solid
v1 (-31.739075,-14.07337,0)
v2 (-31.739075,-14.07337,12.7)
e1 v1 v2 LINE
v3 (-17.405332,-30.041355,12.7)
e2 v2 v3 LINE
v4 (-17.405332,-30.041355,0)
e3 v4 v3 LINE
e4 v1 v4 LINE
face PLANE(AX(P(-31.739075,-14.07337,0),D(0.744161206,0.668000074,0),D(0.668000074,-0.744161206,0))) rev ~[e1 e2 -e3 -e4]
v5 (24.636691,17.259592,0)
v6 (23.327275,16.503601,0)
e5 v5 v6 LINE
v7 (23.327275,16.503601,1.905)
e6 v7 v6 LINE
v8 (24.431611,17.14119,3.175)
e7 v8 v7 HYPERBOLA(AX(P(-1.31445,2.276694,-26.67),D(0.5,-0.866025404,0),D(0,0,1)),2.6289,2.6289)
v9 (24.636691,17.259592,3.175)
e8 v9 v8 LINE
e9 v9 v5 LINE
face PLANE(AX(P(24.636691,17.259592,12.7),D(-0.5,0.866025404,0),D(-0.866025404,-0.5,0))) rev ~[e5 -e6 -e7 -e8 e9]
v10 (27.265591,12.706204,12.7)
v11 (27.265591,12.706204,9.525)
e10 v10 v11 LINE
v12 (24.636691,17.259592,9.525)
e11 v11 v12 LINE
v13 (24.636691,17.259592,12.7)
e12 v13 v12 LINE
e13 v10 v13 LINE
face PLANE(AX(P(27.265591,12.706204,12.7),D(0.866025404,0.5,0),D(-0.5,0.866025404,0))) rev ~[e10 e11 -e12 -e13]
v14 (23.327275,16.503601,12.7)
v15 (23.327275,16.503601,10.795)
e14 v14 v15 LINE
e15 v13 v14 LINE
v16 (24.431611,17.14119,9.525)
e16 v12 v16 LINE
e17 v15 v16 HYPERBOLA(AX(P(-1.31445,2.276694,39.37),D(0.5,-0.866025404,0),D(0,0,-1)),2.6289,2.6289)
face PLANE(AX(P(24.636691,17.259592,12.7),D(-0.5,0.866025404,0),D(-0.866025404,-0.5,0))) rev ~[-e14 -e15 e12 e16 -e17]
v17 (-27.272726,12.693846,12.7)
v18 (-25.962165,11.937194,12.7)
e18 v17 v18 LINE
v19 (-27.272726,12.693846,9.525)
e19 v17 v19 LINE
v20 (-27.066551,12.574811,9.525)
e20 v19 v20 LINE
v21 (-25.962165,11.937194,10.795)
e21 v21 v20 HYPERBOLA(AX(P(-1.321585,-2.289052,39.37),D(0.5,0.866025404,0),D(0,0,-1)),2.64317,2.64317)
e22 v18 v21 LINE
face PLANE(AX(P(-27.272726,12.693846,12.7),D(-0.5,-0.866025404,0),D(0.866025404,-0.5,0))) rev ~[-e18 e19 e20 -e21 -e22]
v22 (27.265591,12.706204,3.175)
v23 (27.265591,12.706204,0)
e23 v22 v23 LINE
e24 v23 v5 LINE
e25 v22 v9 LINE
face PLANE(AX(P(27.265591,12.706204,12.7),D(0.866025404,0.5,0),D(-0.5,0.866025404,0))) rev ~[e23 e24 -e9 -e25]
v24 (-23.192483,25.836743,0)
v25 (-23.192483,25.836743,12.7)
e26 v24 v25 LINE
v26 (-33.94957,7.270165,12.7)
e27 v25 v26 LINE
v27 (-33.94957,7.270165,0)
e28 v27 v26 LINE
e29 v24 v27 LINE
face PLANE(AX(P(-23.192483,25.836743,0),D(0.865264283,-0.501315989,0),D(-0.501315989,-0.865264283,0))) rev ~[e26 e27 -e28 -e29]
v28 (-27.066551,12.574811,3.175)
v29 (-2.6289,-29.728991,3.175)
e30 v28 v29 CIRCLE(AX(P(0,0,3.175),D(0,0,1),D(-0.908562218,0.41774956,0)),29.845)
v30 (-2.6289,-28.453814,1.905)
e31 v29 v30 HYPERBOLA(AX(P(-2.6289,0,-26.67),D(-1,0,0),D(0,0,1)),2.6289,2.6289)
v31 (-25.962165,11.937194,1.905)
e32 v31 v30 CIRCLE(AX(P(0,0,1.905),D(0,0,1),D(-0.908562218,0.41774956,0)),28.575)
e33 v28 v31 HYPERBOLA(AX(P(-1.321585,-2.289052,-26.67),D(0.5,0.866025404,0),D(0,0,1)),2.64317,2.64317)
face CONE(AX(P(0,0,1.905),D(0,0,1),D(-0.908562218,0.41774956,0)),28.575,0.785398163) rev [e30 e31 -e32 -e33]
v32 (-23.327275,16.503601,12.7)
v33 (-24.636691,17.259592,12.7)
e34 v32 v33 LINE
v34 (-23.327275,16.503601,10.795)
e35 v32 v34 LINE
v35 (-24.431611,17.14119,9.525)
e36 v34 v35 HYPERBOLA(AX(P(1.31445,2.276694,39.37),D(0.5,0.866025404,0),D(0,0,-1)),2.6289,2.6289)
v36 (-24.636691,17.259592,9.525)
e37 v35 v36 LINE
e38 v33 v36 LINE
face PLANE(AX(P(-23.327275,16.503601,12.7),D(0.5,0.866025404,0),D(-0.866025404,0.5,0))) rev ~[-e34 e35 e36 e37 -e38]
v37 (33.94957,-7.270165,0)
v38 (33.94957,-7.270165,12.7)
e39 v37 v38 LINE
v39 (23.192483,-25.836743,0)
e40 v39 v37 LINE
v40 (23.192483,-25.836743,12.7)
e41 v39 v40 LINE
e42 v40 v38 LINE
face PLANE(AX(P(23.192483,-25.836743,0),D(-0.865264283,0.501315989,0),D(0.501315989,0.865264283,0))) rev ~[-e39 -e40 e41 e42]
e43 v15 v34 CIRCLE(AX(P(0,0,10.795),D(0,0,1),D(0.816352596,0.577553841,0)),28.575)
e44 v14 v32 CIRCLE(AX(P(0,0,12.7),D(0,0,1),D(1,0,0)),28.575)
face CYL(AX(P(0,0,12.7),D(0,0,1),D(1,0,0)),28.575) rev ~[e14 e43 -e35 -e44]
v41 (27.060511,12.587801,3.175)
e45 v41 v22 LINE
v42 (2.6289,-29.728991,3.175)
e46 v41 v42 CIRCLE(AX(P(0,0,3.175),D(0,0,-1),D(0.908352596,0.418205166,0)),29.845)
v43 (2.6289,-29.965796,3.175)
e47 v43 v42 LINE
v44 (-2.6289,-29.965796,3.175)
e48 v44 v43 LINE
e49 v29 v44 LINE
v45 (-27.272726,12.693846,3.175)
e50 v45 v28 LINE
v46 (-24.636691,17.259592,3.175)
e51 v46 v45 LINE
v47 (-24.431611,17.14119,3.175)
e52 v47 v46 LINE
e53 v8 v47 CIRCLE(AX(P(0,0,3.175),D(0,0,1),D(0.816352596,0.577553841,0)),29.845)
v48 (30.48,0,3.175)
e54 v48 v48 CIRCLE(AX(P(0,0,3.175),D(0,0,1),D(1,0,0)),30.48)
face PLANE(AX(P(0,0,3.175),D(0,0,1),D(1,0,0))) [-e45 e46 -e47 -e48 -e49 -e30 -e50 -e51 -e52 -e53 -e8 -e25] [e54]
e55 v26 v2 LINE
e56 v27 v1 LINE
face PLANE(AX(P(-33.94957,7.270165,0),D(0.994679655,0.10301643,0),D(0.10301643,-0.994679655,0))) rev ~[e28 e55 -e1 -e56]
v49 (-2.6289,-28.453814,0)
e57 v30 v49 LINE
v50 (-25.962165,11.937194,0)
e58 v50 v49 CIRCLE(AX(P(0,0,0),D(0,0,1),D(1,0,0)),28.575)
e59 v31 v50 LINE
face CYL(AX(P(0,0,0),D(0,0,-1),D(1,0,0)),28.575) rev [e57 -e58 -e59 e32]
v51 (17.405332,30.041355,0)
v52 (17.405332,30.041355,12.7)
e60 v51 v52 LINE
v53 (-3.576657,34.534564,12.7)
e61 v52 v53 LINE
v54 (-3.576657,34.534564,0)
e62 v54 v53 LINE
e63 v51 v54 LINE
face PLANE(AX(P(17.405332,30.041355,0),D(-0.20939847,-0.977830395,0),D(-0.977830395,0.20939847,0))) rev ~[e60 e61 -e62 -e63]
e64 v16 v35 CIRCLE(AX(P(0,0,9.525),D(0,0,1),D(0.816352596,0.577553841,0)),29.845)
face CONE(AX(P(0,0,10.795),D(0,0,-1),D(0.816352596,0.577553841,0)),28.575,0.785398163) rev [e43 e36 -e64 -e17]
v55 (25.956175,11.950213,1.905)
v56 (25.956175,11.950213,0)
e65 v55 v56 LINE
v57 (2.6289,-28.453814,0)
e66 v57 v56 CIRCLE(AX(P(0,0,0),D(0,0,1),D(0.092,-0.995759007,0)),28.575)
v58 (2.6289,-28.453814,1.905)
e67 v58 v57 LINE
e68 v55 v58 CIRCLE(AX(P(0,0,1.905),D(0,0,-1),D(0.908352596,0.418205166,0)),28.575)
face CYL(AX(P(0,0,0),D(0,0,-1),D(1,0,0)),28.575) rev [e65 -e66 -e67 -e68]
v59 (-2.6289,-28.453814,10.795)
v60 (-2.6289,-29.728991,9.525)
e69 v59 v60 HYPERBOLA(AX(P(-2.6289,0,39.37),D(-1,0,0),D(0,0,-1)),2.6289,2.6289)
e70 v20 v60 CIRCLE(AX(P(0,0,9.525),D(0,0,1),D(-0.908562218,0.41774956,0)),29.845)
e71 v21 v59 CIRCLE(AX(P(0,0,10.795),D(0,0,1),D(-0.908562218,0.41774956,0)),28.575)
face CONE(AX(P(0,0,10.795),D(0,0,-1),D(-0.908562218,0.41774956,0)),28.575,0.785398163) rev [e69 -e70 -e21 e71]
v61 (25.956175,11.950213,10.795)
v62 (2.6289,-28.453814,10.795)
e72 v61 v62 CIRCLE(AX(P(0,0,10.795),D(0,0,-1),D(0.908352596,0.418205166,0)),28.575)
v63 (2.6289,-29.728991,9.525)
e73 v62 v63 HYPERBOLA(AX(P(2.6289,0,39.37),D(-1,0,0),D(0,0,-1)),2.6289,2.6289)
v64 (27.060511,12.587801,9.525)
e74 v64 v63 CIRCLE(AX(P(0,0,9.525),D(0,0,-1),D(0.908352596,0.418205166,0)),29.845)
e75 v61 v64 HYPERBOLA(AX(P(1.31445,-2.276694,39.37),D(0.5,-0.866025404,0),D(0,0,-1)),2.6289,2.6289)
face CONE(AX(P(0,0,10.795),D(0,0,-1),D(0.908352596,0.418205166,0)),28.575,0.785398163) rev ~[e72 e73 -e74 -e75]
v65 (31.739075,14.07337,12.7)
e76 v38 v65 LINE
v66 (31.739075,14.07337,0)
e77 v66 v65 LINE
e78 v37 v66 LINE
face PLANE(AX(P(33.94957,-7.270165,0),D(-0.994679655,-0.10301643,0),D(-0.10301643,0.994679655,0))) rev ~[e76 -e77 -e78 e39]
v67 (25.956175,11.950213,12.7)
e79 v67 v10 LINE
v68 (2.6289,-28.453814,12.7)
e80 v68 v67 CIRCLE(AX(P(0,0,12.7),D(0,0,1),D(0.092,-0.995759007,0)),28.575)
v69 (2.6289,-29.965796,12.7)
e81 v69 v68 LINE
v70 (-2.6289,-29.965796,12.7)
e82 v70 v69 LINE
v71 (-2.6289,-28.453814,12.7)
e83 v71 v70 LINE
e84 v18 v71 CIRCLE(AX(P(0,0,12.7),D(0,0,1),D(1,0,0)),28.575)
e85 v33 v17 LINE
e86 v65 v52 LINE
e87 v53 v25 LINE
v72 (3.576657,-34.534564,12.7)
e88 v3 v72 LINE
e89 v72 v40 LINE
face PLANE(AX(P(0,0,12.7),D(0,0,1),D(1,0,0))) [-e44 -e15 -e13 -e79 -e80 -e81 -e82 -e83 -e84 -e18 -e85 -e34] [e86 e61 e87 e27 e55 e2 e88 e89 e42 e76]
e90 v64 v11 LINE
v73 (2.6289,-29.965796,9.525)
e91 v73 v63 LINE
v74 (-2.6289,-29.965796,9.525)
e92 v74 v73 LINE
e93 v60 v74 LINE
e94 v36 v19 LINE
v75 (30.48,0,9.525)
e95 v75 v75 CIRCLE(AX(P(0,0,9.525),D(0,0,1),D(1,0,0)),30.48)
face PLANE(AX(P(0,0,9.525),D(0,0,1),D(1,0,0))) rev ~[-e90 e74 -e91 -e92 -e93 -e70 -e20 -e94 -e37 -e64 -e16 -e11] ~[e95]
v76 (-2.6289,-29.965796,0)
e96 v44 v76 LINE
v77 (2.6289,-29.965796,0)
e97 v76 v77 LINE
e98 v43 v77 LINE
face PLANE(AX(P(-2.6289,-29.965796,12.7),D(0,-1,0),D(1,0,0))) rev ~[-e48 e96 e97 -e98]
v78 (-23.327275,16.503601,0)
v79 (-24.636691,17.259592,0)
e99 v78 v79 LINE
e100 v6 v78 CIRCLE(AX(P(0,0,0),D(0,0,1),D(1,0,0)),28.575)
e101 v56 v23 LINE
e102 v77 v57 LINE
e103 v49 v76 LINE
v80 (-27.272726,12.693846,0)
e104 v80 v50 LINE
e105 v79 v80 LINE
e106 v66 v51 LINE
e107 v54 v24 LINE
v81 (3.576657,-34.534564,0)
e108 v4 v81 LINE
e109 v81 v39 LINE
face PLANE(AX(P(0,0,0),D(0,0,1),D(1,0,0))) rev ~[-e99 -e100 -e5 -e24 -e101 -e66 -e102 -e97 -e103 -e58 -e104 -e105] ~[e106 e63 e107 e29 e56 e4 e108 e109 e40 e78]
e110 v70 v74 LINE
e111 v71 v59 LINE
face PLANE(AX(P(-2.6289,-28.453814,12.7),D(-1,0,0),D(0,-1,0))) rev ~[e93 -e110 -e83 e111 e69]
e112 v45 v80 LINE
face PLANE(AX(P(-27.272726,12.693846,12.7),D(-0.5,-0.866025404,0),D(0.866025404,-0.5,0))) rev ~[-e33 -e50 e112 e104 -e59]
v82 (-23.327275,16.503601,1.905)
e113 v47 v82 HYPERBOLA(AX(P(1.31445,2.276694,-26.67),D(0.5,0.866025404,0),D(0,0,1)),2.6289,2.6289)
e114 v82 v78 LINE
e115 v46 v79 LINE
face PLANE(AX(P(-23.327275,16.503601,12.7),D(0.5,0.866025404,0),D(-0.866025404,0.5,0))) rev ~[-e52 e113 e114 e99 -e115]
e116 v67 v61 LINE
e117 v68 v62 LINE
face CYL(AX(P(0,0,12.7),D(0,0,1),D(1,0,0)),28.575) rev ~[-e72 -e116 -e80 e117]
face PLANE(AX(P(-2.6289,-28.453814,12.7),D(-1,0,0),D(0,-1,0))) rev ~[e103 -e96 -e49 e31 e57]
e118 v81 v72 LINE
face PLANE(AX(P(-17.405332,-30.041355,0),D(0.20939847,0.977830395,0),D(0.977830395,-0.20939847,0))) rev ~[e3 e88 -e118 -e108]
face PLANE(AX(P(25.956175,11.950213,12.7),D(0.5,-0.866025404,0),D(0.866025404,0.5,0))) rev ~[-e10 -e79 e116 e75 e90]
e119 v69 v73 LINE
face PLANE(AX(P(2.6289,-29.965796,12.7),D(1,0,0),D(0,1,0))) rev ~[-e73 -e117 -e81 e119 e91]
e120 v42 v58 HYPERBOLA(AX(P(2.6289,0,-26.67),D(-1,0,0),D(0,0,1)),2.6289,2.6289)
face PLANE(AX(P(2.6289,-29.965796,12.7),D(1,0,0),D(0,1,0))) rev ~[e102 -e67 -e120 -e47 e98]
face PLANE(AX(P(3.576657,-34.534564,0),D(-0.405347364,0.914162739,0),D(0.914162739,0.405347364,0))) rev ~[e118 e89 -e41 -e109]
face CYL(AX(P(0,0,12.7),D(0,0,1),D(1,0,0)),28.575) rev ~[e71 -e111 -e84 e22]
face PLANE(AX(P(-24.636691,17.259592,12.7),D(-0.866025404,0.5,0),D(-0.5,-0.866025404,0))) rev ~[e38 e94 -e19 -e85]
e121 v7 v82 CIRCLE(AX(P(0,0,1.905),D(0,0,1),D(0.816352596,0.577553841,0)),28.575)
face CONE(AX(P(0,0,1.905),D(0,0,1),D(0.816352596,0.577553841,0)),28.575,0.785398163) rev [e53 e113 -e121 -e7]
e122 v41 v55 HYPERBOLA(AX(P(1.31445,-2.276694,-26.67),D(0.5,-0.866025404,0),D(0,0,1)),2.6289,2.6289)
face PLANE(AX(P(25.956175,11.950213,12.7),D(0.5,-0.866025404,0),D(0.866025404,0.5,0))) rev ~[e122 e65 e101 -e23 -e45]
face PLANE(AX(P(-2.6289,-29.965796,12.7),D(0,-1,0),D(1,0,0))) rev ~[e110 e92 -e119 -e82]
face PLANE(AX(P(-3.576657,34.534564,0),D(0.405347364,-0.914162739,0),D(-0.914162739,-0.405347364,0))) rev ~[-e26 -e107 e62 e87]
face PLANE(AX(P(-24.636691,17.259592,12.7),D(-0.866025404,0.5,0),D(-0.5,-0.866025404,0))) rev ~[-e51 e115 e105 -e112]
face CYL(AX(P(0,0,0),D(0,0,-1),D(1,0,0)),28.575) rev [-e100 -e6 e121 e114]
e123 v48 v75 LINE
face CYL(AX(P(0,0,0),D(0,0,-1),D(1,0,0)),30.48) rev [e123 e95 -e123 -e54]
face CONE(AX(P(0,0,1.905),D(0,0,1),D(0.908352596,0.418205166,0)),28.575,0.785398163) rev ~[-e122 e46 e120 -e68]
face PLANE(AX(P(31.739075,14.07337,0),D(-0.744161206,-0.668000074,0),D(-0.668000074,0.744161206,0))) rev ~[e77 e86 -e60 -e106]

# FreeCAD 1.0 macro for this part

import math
import FreeCAD as App
import Part
import Sketcher

V = App.Vector
Q = App.Units.Quantity


def edges_at(feature, points):
    """Names of the edges that pass closest to the given points."""
    edges = feature.Shape.Edges
    near = lambda p: min(range(len(edges)), key=lambda i: edges[i].distToShape(Part.Vertex(*p))[0])
    return sorted({f"Edge{near(p) + 1}" for p in points})

doc = App.newDocument("Part")
params = doc.addObject("Spreadsheet::Sheet", "Params")
for row, (alias, value) in enumerate([
    ("sketch1_diameter", "2.4 in"),
    ("pad1_length", "0.5 in"),
    ("sketch2_diameter", "2.4 in"),
    ("sketch2_diameter2", "2.25 in"),
    ("pad2_length", "0.125 in"),
    ("sketch3_diameter", "2.4 in"),
    ("sketch3_diameter2", "2.25 in"),
    ("pad3_length", "0.125 in"),
    ("sketch4_radius", "1.125 in"),
    ("sketch4_width", "0.207 in"),
    ("sketch4_length", "0.207 in"),
    ("pocket1_length", "1 in"),
    ("chamfer_size", "0.05 in"),
], start=1):
    params.set(f"A{row}", alias)
    params.set(f"B{row}", "=" + value)
    params.setAlias(f"B{row}", alias)

body = doc.addObject("PartDesign::Body", "Body")

sketch1 = body.newObject("Sketcher::SketchObject", "Sketch")
sketch1.AttachmentSupport = (doc.getObject("XY_Plane"), [""])
sketch1.MapMode = "FlatFace"
sketch1.addGeometry([
    Part.LineSegment(V(23, -26, 0), V(34, -7, 0)),
    Part.LineSegment(V(34, -7, 0), V(32, 14, 0)),
    Part.LineSegment(V(32, 14, 0), V(17, 30, 0)),
    Part.LineSegment(V(17, 30, 0), V(-4, 35, 0)),
    Part.LineSegment(V(-4, 35, 0), V(-23, 26, 0)),
    Part.LineSegment(V(-23, 26, 0), V(-34, 7, 0)),
    Part.LineSegment(V(-34, 7, 0), V(-32, -14, 0)),
    Part.LineSegment(V(-32, -14, 0), V(-17, -30, 0)),
    Part.LineSegment(V(-17, -30, 0), V(4, -35, 0)),
    Part.LineSegment(V(4, -35, 0), V(23, -26, 0)),
    Part.Circle(V(0, 0, 0), V(0, 0, 1), 30),
], False)
sketch1.addConstraint([
    Sketcher.Constraint("Coincident", 0, 2, 1, 1),
    Sketcher.Constraint("Coincident", 1, 2, 2, 1),
    Sketcher.Constraint("Coincident", 2, 2, 3, 1),
    Sketcher.Constraint("Coincident", 3, 2, 4, 1),
    Sketcher.Constraint("Coincident", 4, 2, 5, 1),
    Sketcher.Constraint("Coincident", 5, 2, 6, 1),
    Sketcher.Constraint("Coincident", 6, 2, 7, 1),
    Sketcher.Constraint("Coincident", 7, 2, 8, 1),
    Sketcher.Constraint("Coincident", 8, 2, 9, 1),
    Sketcher.Constraint("Coincident", 9, 2, 0, 1),
    Sketcher.Constraint("Coincident", 10, 3, -1, 1),
    Sketcher.Constraint("Symmetric", 0, 2, 5, 2, -1, 1),
    Sketcher.Constraint("Symmetric", 1, 2, 6, 2, -1, 1),
    Sketcher.Constraint("Symmetric", 2, 2, 7, 2, -1, 1),
    Sketcher.Constraint("Symmetric", 3, 2, 8, 2, -1, 1),
    Sketcher.Constraint("Symmetric", 4, 2, 9, 2, -1, 1),
    Sketcher.Constraint("Equal", 0, 1),
    Sketcher.Constraint("Equal", 1, 2),
    Sketcher.Constraint("Equal", 2, 3),
    Sketcher.Constraint("Equal", 3, 4),
    Sketcher.Constraint("Diameter", 10, Q("2.4 in")),
    Sketcher.Constraint("DistanceY", 5, 2, 3, 2, Q("27.264399 mm")),
    Sketcher.Constraint("DistanceX", 5, 2, 2, 2, Q("51.354901 mm")),
    Sketcher.Constraint("DistanceY", 7, 2, 4, 2, Q("55.878098 mm")),
    Sketcher.Constraint("DistanceX", -1, 1, 0, 2, Q("33.94957 mm")),
    Sketcher.Constraint("DistanceY", -1, 1, 1, 2, Q("14.07337 mm")),
    Sketcher.Constraint("DistanceY", 0, 2, 2, 2, Q("37.31152 mm")),
])
sketch1.setExpression("Constraints[20]", "Params.sketch1_diameter")
pad1 = body.newObject("PartDesign::Pad", "Pad")
pad1.Profile = sketch1
pad1.setExpression("Length", "Params.pad1_length")

sketch2 = body.newObject("Sketcher::SketchObject", "Sketch001")
sketch2.AttachmentSupport = (doc.getObject("XY_Plane"), [""])
sketch2.MapMode = "FlatFace"
sketch2.addGeometry([
    Part.Circle(V(0, 0, 0), V(0, 0, 1), 30),
    Part.Circle(V(0, 0, 0), V(0, 0, 1), 29),
], False)
sketch2.addConstraint([
    Sketcher.Constraint("Coincident", 0, 3, -1, 1),
    Sketcher.Constraint("Coincident", 1, 3, -1, 1),
    Sketcher.Constraint("Diameter", 0, Q("2.4 in")),
    Sketcher.Constraint("Diameter", 1, Q("2.25 in")),
])
sketch2.setExpression("Constraints[2]", "Params.sketch2_diameter")
sketch2.setExpression("Constraints[3]", "Params.sketch2_diameter2")
pad2 = body.newObject("PartDesign::Pad", "Pad001")
pad2.Profile = sketch2
pad2.setExpression("Length", "Params.pad2_length")

sketch3 = body.newObject("Sketcher::SketchObject", "Sketch002")
sketch3.AttachmentSupport = (doc.getObject("XY_Plane"), [""])
sketch3.MapMode = "FlatFace"
sketch3.AttachmentOffset = App.Placement(V(0, 0, 0.5 * 25.4), App.Rotation())
sketch3.addGeometry([
    Part.Circle(V(0, 0, 0), V(0, 0, 1), 30),
    Part.Circle(V(0, 0, 0), V(0, 0, 1), 29),
], False)
sketch3.addConstraint([
    Sketcher.Constraint("Coincident", 0, 3, -1, 1),
    Sketcher.Constraint("Coincident", 1, 3, -1, 1),
    Sketcher.Constraint("Diameter", 0, Q("2.4 in")),
    Sketcher.Constraint("Diameter", 1, Q("2.25 in")),
])
sketch3.setExpression("Constraints[2]", "Params.sketch3_diameter")
sketch3.setExpression("Constraints[3]", "Params.sketch3_diameter2")
pad3 = body.newObject("PartDesign::Pad", "Pad002")
pad3.Profile = sketch3
pad3.setExpression("Length", "Params.pad3_length")
pad3.Reversed = True

sketch4 = body.newObject("Sketcher::SketchObject", "Sketch003")
sketch4.AttachmentSupport = (doc.getObject("XY_Plane"), [""])
sketch4.MapMode = "FlatFace"
sketch4.AttachmentOffset = App.Placement(V(0, 0, 0.5 * 25.4), App.Rotation())
sketch4.addGeometry([
    Part.ArcOfCircle(Part.Circle(V(0, 0, 0), V(0, 0, 1), 28.6), math.radians(144.72), math.radians(155.31)),
    Part.LineSegment(V(-23.3, 16.5, 0), V(-24.6, 17.3, 0)),
    Part.LineSegment(V(-24.6, 17.3, 0), V(-27.3, 12.7, 0)),
    Part.LineSegment(V(-27.3, 12.7, 0), V(-26, 11.9, 0)),
    Part.ArcOfCircle(Part.Circle(V(0, 0, 0), V(0, 0, 1), 28.6), math.radians(24.72), math.radians(35.28)),
    Part.LineSegment(V(26, 12, 0), V(27.3, 12.7, 0)),
    Part.LineSegment(V(27.3, 12.7, 0), V(24.6, 17.3, 0)),
    Part.LineSegment(V(24.6, 17.3, 0), V(23.3, 16.5, 0)),
    Part.LineSegment(V(2.6, -30, 0), V(2.6, -28.5, 0)),
    Part.ArcOfCircle(Part.Circle(V(0, 0, 0), V(0, 0, 1), 28.6), math.radians(-95.28), math.radians(-84.72)),
    Part.LineSegment(V(-2.6, -28.5, 0), V(-2.6, -30, 0)),
    Part.LineSegment(V(-2.6, -30, 0), V(2.6, -30, 0)),
], False)
sketch4.addConstraint([
    Sketcher.Constraint("Coincident", 0, 1, 1, 1),
    Sketcher.Constraint("Coincident", 1, 2, 2, 1),
    Sketcher.Constraint("Coincident", 2, 2, 3, 1),
    Sketcher.Constraint("Coincident", 3, 2, 0, 2),
    Sketcher.Constraint("Coincident", 4, 1, 5, 1),
    Sketcher.Constraint("Coincident", 5, 2, 6, 1),
    Sketcher.Constraint("Coincident", 6, 2, 7, 1),
    Sketcher.Constraint("Coincident", 7, 2, 4, 2),
    Sketcher.Constraint("Coincident", 8, 2, 9, 2),
    Sketcher.Constraint("Coincident", 9, 1, 10, 1),
    Sketcher.Constraint("Coincident", 10, 2, 11, 1),
    Sketcher.Constraint("Coincident", 11, 2, 8, 1),
    Sketcher.Constraint("Vertical", 8),
    Sketcher.Constraint("Vertical", 10),
    Sketcher.Constraint("Horizontal", 11),
    Sketcher.Constraint("Coincident", 0, 3, -1, 1),
    Sketcher.Constraint("Coincident", 4, 3, -1, 1),
    Sketcher.Constraint("Coincident", 9, 3, -1, 1),
    Sketcher.Constraint("Equal", 0, 4),
    Sketcher.Constraint("Equal", 4, 9),
    Sketcher.Constraint("Symmetric", 1, 2, 6, 2, -2),
    Sketcher.Constraint("Perpendicular", 1, 2),
    Sketcher.Constraint("Perpendicular", 2, 3),
    Sketcher.Constraint("Perpendicular", 5, 6),
    Sketcher.Constraint("Perpendicular", 6, 7),
    Sketcher.Constraint("Horizontal", 0, 1, 7, 2),
    Sketcher.Constraint("Horizontal", 8, 2, 9, 1),
    Sketcher.Constraint("Equal", 1, 5),
    Sketcher.Constraint("Angle", 1, Q("150 deg")),
    Sketcher.Constraint("Radius", 0, Q("1.125 in")),
    Sketcher.Constraint("DistanceX", 11, 1, 11, 2, Q("0.207 in")),
    Sketcher.Constraint("Distance", 6, Q("0.207 in")),
    Sketcher.Constraint("DistanceY", 3, 2, 1, 2, Q("5.322399 mm")),
    Sketcher.Constraint("Distance", 2, Q("5.27207 mm")),
    Sketcher.Constraint("DistanceY", 8, 1, 8, 2, Q("1.511982 mm")),
])
sketch4.setExpression("Constraints[29]", "Params.sketch4_radius")
sketch4.setExpression("Constraints[30]", "Params.sketch4_width")
sketch4.setExpression("Constraints[31]", "Params.sketch4_length")
pocket1 = body.newObject("PartDesign::Pocket", "Pocket")
pocket1.Profile = sketch4
pocket1.setExpression("Length", "Params.pocket1_length")
doc.recompute()

chamfer = body.newObject("PartDesign::Chamfer", "Chamfer")
chamfer.Base = (pocket1, edges_at(pocket1, [
    (-24.743, -14.294, 3.175),
    (24.747, -14.287, 3.175),
    (-24.743, -14.294, 9.525),
    (24.747, -14.287, 9.525),
    (0, 28.575, 3.175),
    (0, 28.575, 9.525),
]))
chamfer.setExpression("Size", "Params.chamfer_size")

doc.recompute()
